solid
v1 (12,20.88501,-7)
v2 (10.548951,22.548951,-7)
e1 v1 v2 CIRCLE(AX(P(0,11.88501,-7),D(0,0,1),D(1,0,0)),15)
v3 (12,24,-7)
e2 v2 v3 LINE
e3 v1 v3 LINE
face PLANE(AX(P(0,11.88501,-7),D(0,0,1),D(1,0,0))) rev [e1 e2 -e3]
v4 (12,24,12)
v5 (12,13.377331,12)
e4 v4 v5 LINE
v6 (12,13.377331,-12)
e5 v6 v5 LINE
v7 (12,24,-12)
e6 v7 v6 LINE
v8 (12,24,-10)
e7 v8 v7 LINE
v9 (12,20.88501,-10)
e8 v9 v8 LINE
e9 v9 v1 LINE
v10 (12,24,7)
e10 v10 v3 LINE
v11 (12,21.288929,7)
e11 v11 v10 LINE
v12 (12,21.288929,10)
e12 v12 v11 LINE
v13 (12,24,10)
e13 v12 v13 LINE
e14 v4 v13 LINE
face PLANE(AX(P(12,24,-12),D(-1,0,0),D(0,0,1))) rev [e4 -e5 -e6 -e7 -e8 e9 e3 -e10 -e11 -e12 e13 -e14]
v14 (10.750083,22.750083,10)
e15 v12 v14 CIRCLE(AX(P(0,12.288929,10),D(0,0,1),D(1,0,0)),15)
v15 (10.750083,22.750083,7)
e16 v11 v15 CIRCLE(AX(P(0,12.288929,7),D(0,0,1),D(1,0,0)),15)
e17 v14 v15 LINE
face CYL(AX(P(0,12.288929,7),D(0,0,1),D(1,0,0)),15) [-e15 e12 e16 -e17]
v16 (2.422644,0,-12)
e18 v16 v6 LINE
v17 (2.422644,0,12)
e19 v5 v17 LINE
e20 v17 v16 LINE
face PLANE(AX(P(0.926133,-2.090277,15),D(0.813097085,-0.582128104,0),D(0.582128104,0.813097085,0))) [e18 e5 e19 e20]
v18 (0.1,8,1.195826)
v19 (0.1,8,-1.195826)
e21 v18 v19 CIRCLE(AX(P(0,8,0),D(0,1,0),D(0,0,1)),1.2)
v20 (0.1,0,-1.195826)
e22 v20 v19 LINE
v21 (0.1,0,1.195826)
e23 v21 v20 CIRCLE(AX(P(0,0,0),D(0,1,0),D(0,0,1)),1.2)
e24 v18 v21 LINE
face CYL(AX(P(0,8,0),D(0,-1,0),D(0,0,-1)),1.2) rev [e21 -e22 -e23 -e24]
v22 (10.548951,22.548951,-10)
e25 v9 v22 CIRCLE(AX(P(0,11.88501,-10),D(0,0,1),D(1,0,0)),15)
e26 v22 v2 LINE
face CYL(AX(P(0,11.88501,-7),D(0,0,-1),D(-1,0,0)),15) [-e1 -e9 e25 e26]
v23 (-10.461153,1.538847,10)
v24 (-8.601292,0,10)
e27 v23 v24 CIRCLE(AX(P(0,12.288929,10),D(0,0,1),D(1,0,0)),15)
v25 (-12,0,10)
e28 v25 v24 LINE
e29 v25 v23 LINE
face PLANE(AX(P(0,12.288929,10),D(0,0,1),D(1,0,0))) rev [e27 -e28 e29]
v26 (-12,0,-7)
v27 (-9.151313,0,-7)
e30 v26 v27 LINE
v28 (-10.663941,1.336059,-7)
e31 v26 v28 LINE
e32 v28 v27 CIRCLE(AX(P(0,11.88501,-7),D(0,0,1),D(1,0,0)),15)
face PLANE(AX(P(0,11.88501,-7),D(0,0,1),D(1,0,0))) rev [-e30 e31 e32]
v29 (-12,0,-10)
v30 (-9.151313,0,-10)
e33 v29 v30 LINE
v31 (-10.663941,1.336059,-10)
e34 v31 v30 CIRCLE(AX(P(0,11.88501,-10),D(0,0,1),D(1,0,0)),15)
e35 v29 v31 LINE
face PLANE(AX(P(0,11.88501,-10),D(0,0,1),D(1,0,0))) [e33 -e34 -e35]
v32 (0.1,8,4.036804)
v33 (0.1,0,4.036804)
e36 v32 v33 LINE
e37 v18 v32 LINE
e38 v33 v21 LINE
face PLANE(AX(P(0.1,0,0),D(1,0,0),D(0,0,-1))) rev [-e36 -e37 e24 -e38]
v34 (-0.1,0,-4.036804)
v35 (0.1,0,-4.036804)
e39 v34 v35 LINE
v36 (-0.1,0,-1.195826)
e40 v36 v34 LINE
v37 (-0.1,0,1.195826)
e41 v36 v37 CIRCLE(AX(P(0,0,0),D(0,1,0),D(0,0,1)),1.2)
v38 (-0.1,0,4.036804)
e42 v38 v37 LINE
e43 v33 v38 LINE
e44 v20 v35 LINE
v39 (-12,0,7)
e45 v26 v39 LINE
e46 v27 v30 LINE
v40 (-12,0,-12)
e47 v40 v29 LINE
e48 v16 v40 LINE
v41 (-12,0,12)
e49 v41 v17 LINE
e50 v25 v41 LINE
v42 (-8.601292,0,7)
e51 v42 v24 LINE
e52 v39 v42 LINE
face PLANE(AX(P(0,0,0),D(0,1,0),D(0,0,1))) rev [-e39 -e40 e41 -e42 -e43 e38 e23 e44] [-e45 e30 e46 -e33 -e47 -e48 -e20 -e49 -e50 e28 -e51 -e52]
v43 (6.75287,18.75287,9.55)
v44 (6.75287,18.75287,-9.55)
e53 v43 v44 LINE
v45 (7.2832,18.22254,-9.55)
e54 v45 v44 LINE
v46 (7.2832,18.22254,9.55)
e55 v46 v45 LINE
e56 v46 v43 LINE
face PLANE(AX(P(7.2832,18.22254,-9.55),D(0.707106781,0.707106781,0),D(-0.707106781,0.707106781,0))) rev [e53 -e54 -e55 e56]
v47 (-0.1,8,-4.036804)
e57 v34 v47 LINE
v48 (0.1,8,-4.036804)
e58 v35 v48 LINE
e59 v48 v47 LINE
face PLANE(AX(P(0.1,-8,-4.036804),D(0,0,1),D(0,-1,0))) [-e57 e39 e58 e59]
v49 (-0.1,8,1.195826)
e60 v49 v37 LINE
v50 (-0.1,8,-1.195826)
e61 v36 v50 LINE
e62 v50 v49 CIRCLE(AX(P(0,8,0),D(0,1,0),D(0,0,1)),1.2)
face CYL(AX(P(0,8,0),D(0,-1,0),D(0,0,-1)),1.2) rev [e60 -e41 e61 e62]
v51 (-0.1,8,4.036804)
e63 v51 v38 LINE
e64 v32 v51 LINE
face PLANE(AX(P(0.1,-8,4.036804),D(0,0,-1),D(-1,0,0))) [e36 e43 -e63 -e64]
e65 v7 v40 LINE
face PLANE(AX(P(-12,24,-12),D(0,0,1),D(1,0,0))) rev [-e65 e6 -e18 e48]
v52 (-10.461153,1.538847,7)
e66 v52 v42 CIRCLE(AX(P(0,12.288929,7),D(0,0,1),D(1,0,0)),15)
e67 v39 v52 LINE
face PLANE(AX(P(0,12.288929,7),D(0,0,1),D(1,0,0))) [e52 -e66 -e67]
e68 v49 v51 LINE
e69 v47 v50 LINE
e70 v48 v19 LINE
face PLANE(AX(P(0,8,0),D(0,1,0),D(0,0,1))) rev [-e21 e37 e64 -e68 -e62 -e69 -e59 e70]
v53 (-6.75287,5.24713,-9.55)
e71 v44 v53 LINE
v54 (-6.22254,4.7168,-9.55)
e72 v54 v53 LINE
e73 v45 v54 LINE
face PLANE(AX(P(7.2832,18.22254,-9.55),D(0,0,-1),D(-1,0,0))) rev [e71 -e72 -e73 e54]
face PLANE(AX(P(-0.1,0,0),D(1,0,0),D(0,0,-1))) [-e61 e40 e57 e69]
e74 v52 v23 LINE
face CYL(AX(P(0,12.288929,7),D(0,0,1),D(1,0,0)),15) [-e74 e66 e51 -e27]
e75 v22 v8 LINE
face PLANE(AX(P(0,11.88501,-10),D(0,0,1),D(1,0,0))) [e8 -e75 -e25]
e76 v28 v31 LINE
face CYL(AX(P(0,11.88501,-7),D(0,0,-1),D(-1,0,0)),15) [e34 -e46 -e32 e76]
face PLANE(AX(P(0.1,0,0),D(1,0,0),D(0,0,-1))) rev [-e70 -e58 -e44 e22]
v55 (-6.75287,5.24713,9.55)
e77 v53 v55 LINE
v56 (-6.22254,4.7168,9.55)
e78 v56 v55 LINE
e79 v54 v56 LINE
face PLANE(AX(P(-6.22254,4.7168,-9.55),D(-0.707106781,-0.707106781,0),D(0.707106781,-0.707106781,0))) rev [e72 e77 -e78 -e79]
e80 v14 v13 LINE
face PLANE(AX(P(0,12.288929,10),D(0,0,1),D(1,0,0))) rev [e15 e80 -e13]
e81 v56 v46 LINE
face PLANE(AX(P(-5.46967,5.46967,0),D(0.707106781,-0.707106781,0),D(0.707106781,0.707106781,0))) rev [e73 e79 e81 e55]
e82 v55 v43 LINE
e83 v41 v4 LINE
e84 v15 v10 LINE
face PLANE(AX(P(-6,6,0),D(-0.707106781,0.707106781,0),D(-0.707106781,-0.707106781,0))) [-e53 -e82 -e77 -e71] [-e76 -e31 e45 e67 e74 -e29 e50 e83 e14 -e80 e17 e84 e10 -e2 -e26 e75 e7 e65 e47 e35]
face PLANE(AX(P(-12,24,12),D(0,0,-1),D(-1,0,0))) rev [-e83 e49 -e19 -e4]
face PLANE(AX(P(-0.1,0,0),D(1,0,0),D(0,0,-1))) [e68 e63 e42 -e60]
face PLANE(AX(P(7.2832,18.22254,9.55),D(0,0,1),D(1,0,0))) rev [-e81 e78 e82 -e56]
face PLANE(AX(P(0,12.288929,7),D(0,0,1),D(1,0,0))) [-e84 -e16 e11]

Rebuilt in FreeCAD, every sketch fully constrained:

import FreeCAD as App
import Part
import Sketcher

V = App.Vector
Q = App.Units.Quantity


def add_polygon(sketch, points):
    """Adds a closed chain of lines whose ends are joined by coincident constraints."""
    first, n = sketch.GeometryCount, len(points)
    for a, b in zip(points, points[1:] + points[:1]):
        sketch.addGeometry(Part.LineSegment(App.Vector(*a, 0), App.Vector(*b, 0)), False)
    for i in range(n):
        sketch.addConstraint(Sketcher.Constraint("Coincident", first + i, 2, first + (i + 1) % n, 1))

doc = App.newDocument("Part")
params = doc.addObject("Spreadsheet::Sheet", "Params")
for row, (alias, value) in enumerate([
    ("sketch1_width", "24 mm"),
    ("pad1_length", "24 mm"),
    ("pocket1_length", "24 mm"),
    ("sketch3_width", "19.1 mm"),
    ("pocket2_length", "0.75 mm"),
    ("sketch4_diameter", "30 mm"),
    ("pocket3_length", "3 mm"),
    ("sketch5_diameter", "30 mm"),
    ("pocket4_length", "3 mm"),
    ("sketch6_diameter", "2.4 mm"),
    ("pocket5_length", "8 mm"),
    ("sketch7_width", "16 mm"),
    ("pocket6_length", "0.1 mm"),
    ("pocket6_length2", "0.1 mm"),
], start=1):
    params.set(f"A{row}", alias)
    params.set(f"B{row}", "=" + value)
    params.setAlias(f"B{row}", alias)

body = doc.addObject("PartDesign::Body", "Body")

# Sketch on XZ plane
sketch1 = doc.addObject("Sketcher::SketchObject", "Sketch")
body.addObject(sketch1)
sketch1.AttachmentSupport = (doc.XZ_Plane, [""])
sketch1.MapMode = "FlatFace"
add_polygon(sketch1, [(-12, -12), (-12, 12), (12, 12), (12, -12)])  # lines 0-3
sketch1.addConstraint(Sketcher.Constraint("Vertical", 0))
sketch1.addConstraint(Sketcher.Constraint("Horizontal", 1))
sketch1.addConstraint(Sketcher.Constraint("Vertical", 2))
sketch1.addConstraint(Sketcher.Constraint("Horizontal", 3))
sketch1.addConstraint(Sketcher.Constraint("Symmetric", 0, 2, 2, 2, -1, 1))
sketch1.addConstraint(Sketcher.Constraint("Equal", 3, 0))
sketch1.addConstraint(Sketcher.Constraint("DistanceX", 1, 1, 1, 2, Q("24 mm")))
sketch1.setExpression("Constraints[10]", "Params.sketch1_width")
pad1 = doc.addObject("PartDesign::Pad", "Pad")
body.addObject(pad1)
pad1.Profile = sketch1
pad1.setExpression("Length", "Params.pad1_length")
pad1.Reversed = True

# Sketch on an angled plane
sketch2 = doc.addObject("Sketcher::SketchObject", "Sketch001")
body.addObject(sketch2)
sketch2.Placement = App.Placement(V(-6, 6, 0), App.Rotation(V(0.707106781, 0.707106781, 0), V(0, 0, -0.999999999), V(-0.707106781, 0.707106781, 0), "ZXY"))
add_polygon(sketch2, [(-36, 32), (-36, -32), (36, -32), (36, 32)])  # lines 0-3
sketch2.addConstraint(Sketcher.Constraint("Vertical", 0))
sketch2.addConstraint(Sketcher.Constraint("Horizontal", 1))
sketch2.addConstraint(Sketcher.Constraint("Vertical", 2))
sketch2.addConstraint(Sketcher.Constraint("Horizontal", 3))
sketch2.addConstraint(Sketcher.Constraint("Symmetric", 0, 2, 2, 2, -1, 1))
sketch2.addConstraint(Sketcher.Constraint("DistanceX", 1, 1, 1, 2, Q("71.732005 mm")))
sketch2.addConstraint(Sketcher.Constraint("DistanceY", 0, 2, 0, 1, Q("64.325513 mm")))
pocket1 = doc.addObject("PartDesign::Pocket", "Pocket")
body.addObject(pocket1)
pocket1.Profile = sketch2
pocket1.setExpression("Length", "Params.pocket1_length")
pocket1.Reversed = True

# Sketch on an angled plane
sketch3 = doc.addObject("Sketcher::SketchObject", "Sketch002")
body.addObject(sketch3)
sketch3.Placement = App.Placement(V(-6, 6, 0), App.Rotation(V(0.707106781, 0.707106781, 0), V(0, 0, -0.999999999), V(-0.707106781, 0.707106781, 0), "ZXY"))
add_polygon(sketch3, [(-1, 10), (-1, -10), (18, -10), (18, 10)])  # lines 0-3
sketch3.addConstraint(Sketcher.Constraint("Vertical", 0))
sketch3.addConstraint(Sketcher.Constraint("Horizontal", 1))
sketch3.addConstraint(Sketcher.Constraint("Vertical", 2))
sketch3.addConstraint(Sketcher.Constraint("Horizontal", 3))
sketch3.addConstraint(Sketcher.Constraint("Equal", 3, 0))
sketch3.addConstraint(Sketcher.Constraint("DistanceX", 1, 1, 1, 2, Q("19.1 mm")))
sketch3.addConstraint(Sketcher.Constraint("DistanceY", 0, 2, -1, 1, Q("9.55 mm")))
sketch3.addConstraint(Sketcher.Constraint("DistanceX", 0, 2, -1, 1, Q("1.064719 mm")))
sketch3.setExpression("Constraints[9]", "Params.sketch3_width")
pocket2 = doc.addObject("PartDesign::Pocket", "Pocket001")
body.addObject(pocket2)
pocket2.Profile = sketch3
pocket2.setExpression("Length", "Params.pocket2_length")

# Sketch on XY plane
sketch4 = doc.addObject("Sketcher::SketchObject", "Sketch003")
body.addObject(sketch4)
sketch4.AttachmentSupport = (doc.XY_Plane, [""])
sketch4.MapMode = "FlatFace"
sketch4.AttachmentOffset = App.Placement(V(0, 0, 10), App.Rotation())
sketch4.addGeometry(Part.Circle(V(0, 12, 0), V(0, 0, 1), 20), False)
sketch4.addGeometry(Part.Circle(V(0, 12, 0), V(0, 0, 1), 15), False)
sketch4.addConstraint(Sketcher.Constraint("Coincident", 1, 3, 0, 3))
sketch4.addConstraint(Sketcher.Constraint("PointOnObject", 0, 3, -2))
sketch4.addConstraint(Sketcher.Constraint("Diameter", 1, Q("30 mm")))
sketch4.addConstraint(Sketcher.Constraint("Diameter", 0, Q("40.632313 mm")))
sketch4.addConstraint(Sketcher.Constraint("DistanceY", -1, 1, 0, 3, Q("12.288929 mm")))
sketch4.setExpression("Constraints[2]", "Params.sketch4_diameter")
pocket3 = doc.addObject("PartDesign::Pocket", "Pocket002")
body.addObject(pocket3)
pocket3.Profile = sketch4
pocket3.setExpression("Length", "Params.pocket3_length")

# Sketch on XY plane
sketch5 = doc.addObject("Sketcher::SketchObject", "Sketch004")
body.addObject(sketch5)
sketch5.AttachmentSupport = (doc.XY_Plane, [""])
sketch5.MapMode = "FlatFace"
sketch5.AttachmentOffset = App.Placement(V(0, 0, -10), App.Rotation())
sketch5.addGeometry(Part.Circle(V(0, 12, 0), V(0, 0, 1), 20), False)
sketch5.addGeometry(Part.Circle(V(0, 12, 0), V(0, 0, 1), 15), False)
sketch5.addConstraint(Sketcher.Constraint("Coincident", 1, 3, 0, 3))
sketch5.addConstraint(Sketcher.Constraint("PointOnObject", 0, 3, -2))
sketch5.addConstraint(Sketcher.Constraint("Diameter", 1, Q("30 mm")))
sketch5.addConstraint(Sketcher.Constraint("Diameter", 0, Q("39.557632 mm")))
sketch5.addConstraint(Sketcher.Constraint("DistanceY", -1, 1, 0, 3, Q("11.88501 mm")))
sketch5.setExpression("Constraints[2]", "Params.sketch5_diameter")
pocket4 = doc.addObject("PartDesign::Pocket", "Pocket003")
body.addObject(pocket4)
pocket4.Profile = sketch5
pocket4.setExpression("Length", "Params.pocket4_length")
pocket4.Reversed = True

# Sketch on XZ plane
sketch6 = doc.addObject("Sketcher::SketchObject", "Sketch005")
body.addObject(sketch6)
sketch6.AttachmentSupport = (doc.XZ_Plane, [""])
sketch6.MapMode = "FlatFace"
sketch6.addGeometry(Part.Circle(V(0, 0, 0), V(0, 0, 1), 1.2), False)
sketch6.addConstraint(Sketcher.Constraint("Coincident", 0, 3, -1, 1))
sketch6.addConstraint(Sketcher.Constraint("Diameter", 0, Q("2.4 mm")))
sketch6.setExpression("Constraints[1]", "Params.sketch6_diameter")
pocket5 = doc.addObject("PartDesign::Pocket", "Pocket004")
body.addObject(pocket5)
pocket5.Profile = sketch6
pocket5.setExpression("Length", "Params.pocket5_length")

# Sketch on YZ plane
sketch7 = doc.addObject("Sketcher::SketchObject", "Sketch006")
body.addObject(sketch7)
sketch7.AttachmentSupport = (doc.YZ_Plane, [""])
sketch7.MapMode = "FlatFace"
add_polygon(sketch7, [(8, 4), (-8, 4), (-8, -4), (8, -4)])  # lines 0-3
sketch7.addConstraint(Sketcher.Constraint("Horizontal", 0))
sketch7.addConstraint(Sketcher.Constraint("Vertical", 1))
sketch7.addConstraint(Sketcher.Constraint("Horizontal", 2))
sketch7.addConstraint(Sketcher.Constraint("Vertical", 3))
sketch7.addConstraint(Sketcher.Constraint("Symmetric", 0, 2, 2, 2, -1, 1))
sketch7.addConstraint(Sketcher.Constraint("DistanceX", 0, 2, 0, 1, Q("16 mm")))
sketch7.addConstraint(Sketcher.Constraint("DistanceY", 1, 2, 1, 1, Q("8.073607 mm")))
sketch7.setExpression("Constraints[9]", "Params.sketch7_width")
pocket6 = doc.addObject("PartDesign::Pocket", "Pocket005")
body.addObject(pocket6)
pocket6.Profile = sketch7
pocket6.Type = "TwoLengths"
pocket6.setExpression("Length", "Params.pocket6_length")
pocket6.setExpression("Length2", "Params.pocket6_length2")
pocket6.Reversed = True

# Sketch on XY plane
sketch8 = doc.addObject("Sketcher::SketchObject", "Sketch007")
body.addObject(sketch8)
sketch8.AttachmentSupport = (doc.XY_Plane, [""])
sketch8.MapMode = "FlatFace"
add_polygon(sketch8, [(18, 22), (1, -2), (24, -7)])  # lines 0-2
sketch8.addConstraint(Sketcher.Constraint("Distance", 2, Q("29.845098 mm")))
sketch8.addConstraint(Sketcher.Constraint("DistanceX", -1, 1, 1, 2, Q("23.544619 mm")))
sketch8.addConstraint(Sketcher.Constraint("DistanceY", 1, 2, -1, 1, Q("7.469691 mm")))
sketch8.addConstraint(Sketcher.Constraint("DistanceX", -1, 1, 2, 2, Q("18.08098 mm")))
sketch8.addConstraint(Sketcher.Constraint("Distance", 0, Q("29.469196 mm")))
sketch8.addConstraint(Sketcher.Constraint("Distance", 1, Q("23.249387 mm")))
pocket7 = doc.addObject("PartDesign::Pocket", "Pocket006")
body.addObject(pocket7)
pocket7.Profile = sketch8
pocket7.Type = "ThroughAll"
pocket7.Midplane = True

doc.recompute()
